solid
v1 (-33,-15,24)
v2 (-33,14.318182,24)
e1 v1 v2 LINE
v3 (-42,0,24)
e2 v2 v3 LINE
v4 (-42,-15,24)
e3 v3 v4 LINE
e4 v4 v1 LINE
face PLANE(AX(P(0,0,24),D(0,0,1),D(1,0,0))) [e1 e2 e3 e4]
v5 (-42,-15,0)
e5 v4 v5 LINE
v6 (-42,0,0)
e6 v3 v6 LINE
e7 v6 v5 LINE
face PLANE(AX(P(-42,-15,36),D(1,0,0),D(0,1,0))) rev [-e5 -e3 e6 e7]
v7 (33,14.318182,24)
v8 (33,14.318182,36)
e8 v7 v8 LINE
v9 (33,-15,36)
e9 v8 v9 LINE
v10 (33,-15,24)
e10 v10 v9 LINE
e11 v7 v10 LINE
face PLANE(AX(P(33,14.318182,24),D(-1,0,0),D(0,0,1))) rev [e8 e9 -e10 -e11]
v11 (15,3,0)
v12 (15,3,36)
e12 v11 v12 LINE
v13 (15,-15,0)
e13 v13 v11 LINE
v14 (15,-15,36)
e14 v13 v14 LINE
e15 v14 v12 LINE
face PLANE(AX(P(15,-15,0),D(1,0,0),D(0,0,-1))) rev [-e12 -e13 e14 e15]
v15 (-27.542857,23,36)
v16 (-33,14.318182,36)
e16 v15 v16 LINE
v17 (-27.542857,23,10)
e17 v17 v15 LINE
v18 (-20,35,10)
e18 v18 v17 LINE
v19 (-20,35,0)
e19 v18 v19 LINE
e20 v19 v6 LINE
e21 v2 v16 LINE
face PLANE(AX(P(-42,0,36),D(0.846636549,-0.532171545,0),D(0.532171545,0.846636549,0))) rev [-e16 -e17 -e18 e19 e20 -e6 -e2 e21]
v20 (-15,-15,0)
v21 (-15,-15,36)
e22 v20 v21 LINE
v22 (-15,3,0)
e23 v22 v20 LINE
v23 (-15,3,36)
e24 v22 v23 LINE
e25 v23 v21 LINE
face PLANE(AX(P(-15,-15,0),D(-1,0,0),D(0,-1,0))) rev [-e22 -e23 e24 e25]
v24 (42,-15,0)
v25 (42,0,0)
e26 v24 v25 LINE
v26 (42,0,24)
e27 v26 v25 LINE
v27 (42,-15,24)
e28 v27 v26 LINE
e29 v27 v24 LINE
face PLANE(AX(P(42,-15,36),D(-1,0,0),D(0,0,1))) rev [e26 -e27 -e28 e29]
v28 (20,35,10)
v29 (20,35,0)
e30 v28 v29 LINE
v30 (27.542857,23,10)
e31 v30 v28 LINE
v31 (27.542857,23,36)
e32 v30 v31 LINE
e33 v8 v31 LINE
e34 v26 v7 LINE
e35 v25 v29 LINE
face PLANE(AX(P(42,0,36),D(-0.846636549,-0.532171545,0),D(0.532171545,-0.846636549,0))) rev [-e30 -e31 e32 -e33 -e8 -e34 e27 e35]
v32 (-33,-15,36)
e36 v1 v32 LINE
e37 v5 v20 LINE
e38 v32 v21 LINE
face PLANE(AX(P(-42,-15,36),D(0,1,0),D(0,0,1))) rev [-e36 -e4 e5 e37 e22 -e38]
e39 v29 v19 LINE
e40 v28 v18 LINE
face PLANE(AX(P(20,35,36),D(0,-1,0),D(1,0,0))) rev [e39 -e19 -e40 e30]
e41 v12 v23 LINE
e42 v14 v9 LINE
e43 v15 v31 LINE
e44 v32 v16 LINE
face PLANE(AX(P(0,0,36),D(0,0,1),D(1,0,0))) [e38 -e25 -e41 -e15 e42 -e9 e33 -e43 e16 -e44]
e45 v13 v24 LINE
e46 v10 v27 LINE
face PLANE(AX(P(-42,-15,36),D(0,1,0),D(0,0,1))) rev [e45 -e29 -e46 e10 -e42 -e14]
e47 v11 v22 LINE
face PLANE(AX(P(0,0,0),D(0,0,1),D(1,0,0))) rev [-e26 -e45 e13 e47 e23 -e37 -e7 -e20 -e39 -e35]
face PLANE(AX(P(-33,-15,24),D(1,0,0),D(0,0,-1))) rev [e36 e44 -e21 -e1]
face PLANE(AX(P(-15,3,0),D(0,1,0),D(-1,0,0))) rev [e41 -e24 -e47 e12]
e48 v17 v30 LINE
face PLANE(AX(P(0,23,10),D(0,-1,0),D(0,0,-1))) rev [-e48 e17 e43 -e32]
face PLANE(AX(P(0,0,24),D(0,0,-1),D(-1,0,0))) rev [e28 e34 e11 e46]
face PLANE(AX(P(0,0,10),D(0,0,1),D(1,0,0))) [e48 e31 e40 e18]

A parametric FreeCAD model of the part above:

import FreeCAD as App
import Part
import Sketcher

V = App.Vector

doc = App.newDocument("Part")
body = doc.addObject("PartDesign::Body", "Body")

sketch1 = doc.addObject("Sketcher::SketchObject", "Sketch")
body.addObject(sketch1)
sketch1.AttachmentSupport = (doc.XY_Plane, [""])
sketch1.MapMode = "FlatFace"
sketch1.addGeometry([
    Part.LineSegment(V(-42, -15, 0), V(42, -15, 0)),
    Part.LineSegment(V(42, -15, 0), V(42, 0, 0)),
    Part.LineSegment(V(42, 0, 0), V(20, 35, 0)),
    Part.LineSegment(V(20, 35, 0), V(-20, 35, 0)),
    Part.LineSegment(V(-20, 35, 0), V(-42, 0, 0)),
    Part.LineSegment(V(-42, 0, 0), V(-42, -15, 0)),
], False)
sketch1.addConstraint([
    Sketcher.Constraint("Coincident", 0, 2, 1, 1),
    Sketcher.Constraint("Coincident", 1, 2, 2, 1),
    Sketcher.Constraint("Coincident", 2, 2, 3, 1),
    Sketcher.Constraint("Coincident", 3, 2, 4, 1),
    Sketcher.Constraint("Coincident", 4, 2, 5, 1),
    Sketcher.Constraint("Coincident", 5, 2, 0, 1),
    Sketcher.Constraint("Horizontal", 0),
    Sketcher.Constraint("Vertical", 1),
    Sketcher.Constraint("Horizontal", 3),
    Sketcher.Constraint("Vertical", 5),
    Sketcher.Constraint("Symmetric", 1, 2, 4, 2, -1, 1),
    Sketcher.Constraint("PointOnObject", 1, 2, -1),
    Sketcher.Constraint("Equal", 2, 4),
    Sketcher.Constraint("DistanceX", 0, 1, 0, 2, 84.0),
    Sketcher.Constraint("DistanceX", 3, 2, 3, 1, 40.0),
    Sketcher.Constraint("DistanceY", 1, 1, 1, 2, 15.0),
    Sketcher.Constraint("DistanceY", -1, 1, 2, 2, 35.0),
])
pad1 = doc.addObject("PartDesign::Pad", "Pad")
body.addObject(pad1)
pad1.Profile = sketch1
pad1.Length = 36

sketch2 = doc.addObject("Sketcher::SketchObject", "Sketch001")
body.addObject(sketch2)
sketch2.AttachmentSupport = (doc.XY_Plane, [""])
sketch2.MapMode = "FlatFace"
sketch2.AttachmentOffset = App.Placement(V(0, 0, 36), App.Rotation())
sketch2.addGeometry([
    Part.LineSegment(V(-20, 35, 0), V(-28, 23, 0)),
    Part.LineSegment(V(-28, 23, 0), V(28, 23, 0)),
    Part.LineSegment(V(28, 23, 0), V(20, 35, 0)),
    Part.LineSegment(V(20, 35, 0), V(-20, 35, 0)),
], False)
sketch2.addConstraint([
    Sketcher.Constraint("Coincident", 0, 2, 1, 1),
    Sketcher.Constraint("Coincident", 1, 2, 2, 1),
    Sketcher.Constraint("Coincident", 2, 2, 3, 1),
    Sketcher.Constraint("Coincident", 3, 2, 0, 1),
    Sketcher.Constraint("Horizontal", 1),
    Sketcher.Constraint("Horizontal", 3),
    Sketcher.Constraint("Equal", 0, 2),
    Sketcher.Constraint("DistanceX", 3, 2, 3, 1, 40.0),
    Sketcher.Constraint("DistanceY", -1, 1, 0, 2, 23.0),
    Sketcher.Constraint("DistanceX", -1, 1, 2, 2, 20.0),
    Sketcher.Constraint("DistanceY", -1, 1, 2, 2, 35.0),
    Sketcher.Constraint("DistanceX", 1, 1, 1, 2, 55.085714),
])
pocket1 = doc.addObject("PartDesign::Pocket", "Pocket")
body.addObject(pocket1)
pocket1.Profile = sketch2
pocket1.Length = 26

sketch3 = doc.addObject("Sketcher::SketchObject", "Sketch002")
body.addObject(sketch3)
sketch3.AttachmentSupport = (doc.XY_Plane, [""])
sketch3.MapMode = "FlatFace"
sketch3.AttachmentOffset = App.Placement(V(0, 0, 36), App.Rotation())
sketch3.addGeometry([
    Part.LineSegment(V(33, 14, 0), V(33, -15, 0)),
    Part.LineSegment(V(33, -15, 0), V(42, -15, 0)),
    Part.LineSegment(V(42, -15, 0), V(42, 0, 0)),
    Part.LineSegment(V(42, 0, 0), V(33, 14, 0)),
    Part.LineSegment(V(-33, -15, 0), V(-33, 14, 0)),
    Part.LineSegment(V(-33, 14, 0), V(-42, 0, 0)),
    Part.LineSegment(V(-42, 0, 0), V(-42, -15, 0)),
    Part.LineSegment(V(-42, -15, 0), V(-33, -15, 0)),
], False)
sketch3.addConstraint([
    Sketcher.Constraint("Coincident", 0, 2, 1, 1),
    Sketcher.Constraint("Coincident", 1, 2, 2, 1),
    Sketcher.Constraint("Coincident", 2, 2, 3, 1),
    Sketcher.Constraint("Coincident", 3, 2, 0, 1),
    Sketcher.Constraint("Coincident", 4, 2, 5, 1),
    Sketcher.Constraint("Coincident", 5, 2, 6, 1),
    Sketcher.Constraint("Coincident", 6, 2, 7, 1),
    Sketcher.Constraint("Coincident", 7, 2, 4, 1),
    Sketcher.Constraint("Vertical", 0),
    Sketcher.Constraint("Horizontal", 1),
    Sketcher.Constraint("Vertical", 2),
    Sketcher.Constraint("Vertical", 4),
    Sketcher.Constraint("Vertical", 6),
    Sketcher.Constraint("Horizontal", 7),
    Sketcher.Constraint("Symmetric", 2, 2, 5, 2, -1, 1),
    Sketcher.Constraint("Symmetric", 3, 2, 4, 2, -2),
    Sketcher.Constraint("PointOnObject", 2, 2, -1),
    Sketcher.Constraint("Horizontal", 1, 2, 6, 2),
    Sketcher.Constraint("DistanceX", 1, 1, 1, 2, 9.0),
    Sketcher.Constraint("DistanceY", 2, 1, 2, 2, 15.0),
    Sketcher.Constraint("DistanceX", -1, 1, 0, 2, 33.0),
    Sketcher.Constraint("DistanceY", 0, 2, 0, 1, 29.318182),
])
pocket2 = doc.addObject("PartDesign::Pocket", "Pocket001")
body.addObject(pocket2)
pocket2.Profile = sketch3
pocket2.Length = 12

sketch4 = doc.addObject("Sketcher::SketchObject", "Sketch003")
body.addObject(sketch4)
sketch4.AttachmentSupport = (doc.XY_Plane, [""])
sketch4.MapMode = "FlatFace"
sketch4.AttachmentOffset = App.Placement(V(0, 0, 36), App.Rotation())
sketch4.addGeometry([
    Part.LineSegment(V(-15, 3, 0), V(-15, -15, 0)),
    Part.LineSegment(V(-15, -15, 0), V(15, -15, 0)),
    Part.LineSegment(V(15, -15, 0), V(15, 3, 0)),
    Part.LineSegment(V(15, 3, 0), V(-15, 3, 0)),
], False)
sketch4.addConstraint([
    Sketcher.Constraint("Coincident", 0, 2, 1, 1),
    Sketcher.Constraint("Coincident", 1, 2, 2, 1),
    Sketcher.Constraint("Coincident", 2, 2, 3, 1),
    Sketcher.Constraint("Coincident", 3, 2, 0, 1),
    Sketcher.Constraint("Vertical", 0),
    Sketcher.Constraint("Horizontal", 1),
    Sketcher.Constraint("Vertical", 2),
    Sketcher.Constraint("Horizontal", 3),
    Sketcher.Constraint("DistanceX", 1, 1, 1, 2, 30.0),
    Sketcher.Constraint("DistanceY", 0, 2, 0, 1, 18.0),
    Sketcher.Constraint("DistanceX", 0, 2, -1, 1, 15.0),
    Sketcher.Constraint("DistanceY", 0, 2, -1, 1, 15.0),
])
pocket3 = doc.addObject("PartDesign::Pocket", "Pocket002")
body.addObject(pocket3)
pocket3.Profile = sketch4
pocket3.Type = "ThroughAll"

doc.recompute()
